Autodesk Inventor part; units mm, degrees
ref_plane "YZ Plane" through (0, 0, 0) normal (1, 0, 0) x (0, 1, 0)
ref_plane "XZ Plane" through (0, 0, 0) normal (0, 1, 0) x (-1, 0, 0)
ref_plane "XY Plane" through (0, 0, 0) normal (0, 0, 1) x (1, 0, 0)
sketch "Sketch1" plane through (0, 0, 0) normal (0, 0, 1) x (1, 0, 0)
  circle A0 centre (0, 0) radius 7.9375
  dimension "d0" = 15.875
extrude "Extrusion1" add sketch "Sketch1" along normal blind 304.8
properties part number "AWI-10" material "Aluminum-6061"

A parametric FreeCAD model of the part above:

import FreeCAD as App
import Part
import Sketcher
from FreeCAD import Vector
Q = App.Units.Quantity

doc = App.newDocument("Part")
body = doc.addObject("PartDesign::Body", "Body")

# Sketch on XY plane
sketch1 = doc.addObject("Sketcher::SketchObject", "Sketch")
body.addObject(sketch1)
sketch1.AttachmentSupport = (doc.XY_Plane, [""])
sketch1.MapMode = "FlatFace"
sketch1.addGeometry(Part.Circle(Vector(0, 0, 0), Vector(0, 0, 1), 8), False)
sketch1.addConstraint(Sketcher.Constraint("Coincident", 0, 3, -1, 1))
sketch1.addConstraint(Sketcher.Constraint("Diameter", 0, Q("0.625 in")))
pad1 = doc.addObject("PartDesign::Pad", "Pad")
body.addObject(pad1)
pad1.Profile = sketch1
pad1.Length = Q("12 in")

doc.recompute()
